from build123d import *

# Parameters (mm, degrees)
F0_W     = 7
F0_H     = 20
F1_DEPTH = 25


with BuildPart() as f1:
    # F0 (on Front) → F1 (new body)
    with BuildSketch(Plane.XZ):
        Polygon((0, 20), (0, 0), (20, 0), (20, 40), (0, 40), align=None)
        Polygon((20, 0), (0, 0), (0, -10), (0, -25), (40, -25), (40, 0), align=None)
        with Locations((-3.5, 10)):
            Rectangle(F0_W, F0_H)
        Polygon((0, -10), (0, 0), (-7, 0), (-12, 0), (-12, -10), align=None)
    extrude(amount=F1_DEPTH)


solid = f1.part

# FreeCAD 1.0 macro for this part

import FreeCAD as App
import Part
import Sketcher

doc = App.newDocument("Part")
body = doc.addObject("PartDesign::Body", "Body")

sketch1 = body.newObject("Sketcher::SketchObject", "Sketch")
sketch1.AttachmentSupport = (doc.getObject("XZ_Plane"), [""])
sketch1.MapMode = "FlatFace"
sketch1.addGeometry(Part.LineSegment(App.Vector(20, 0, 0), App.Vector(20, 40, 0)), False)
sketch1.addGeometry(Part.LineSegment(App.Vector(20, 40, 0), App.Vector(0, 40, 0)), False)
sketch1.addGeometry(Part.LineSegment(App.Vector(0, 40, 0), App.Vector(0, 20, 0)), False)
sketch1.addGeometry(Part.LineSegment(App.Vector(0, 20, 0), App.Vector(-7, 20, 0)), False)
sketch1.addGeometry(Part.LineSegment(App.Vector(-7, 20, 0), App.Vector(-7, 0, 0)), False)
sketch1.addGeometry(Part.LineSegment(App.Vector(-7, 0, 0), App.Vector(-12, 0, 0)), False)
sketch1.addGeometry(Part.LineSegment(App.Vector(-12, 0, 0), App.Vector(-12, -10, 0)), False)
sketch1.addGeometry(Part.LineSegment(App.Vector(-12, -10, 0), App.Vector(0, -10, 0)), False)
sketch1.addGeometry(Part.LineSegment(App.Vector(0, -10, 0), App.Vector(0, -25, 0)), False)
sketch1.addGeometry(Part.LineSegment(App.Vector(0, -25, 0), App.Vector(40, -25, 0)), False)
sketch1.addGeometry(Part.LineSegment(App.Vector(40, -25, 0), App.Vector(40, 0, 0)), False)
sketch1.addGeometry(Part.LineSegment(App.Vector(40, 0, 0), App.Vector(20, 0, 0)), False)
sketch1.addConstraint(Sketcher.Constraint("Coincident", 0, 2, 1, 1))
sketch1.addConstraint(Sketcher.Constraint("Coincident", 1, 2, 2, 1))
sketch1.addConstraint(Sketcher.Constraint("Coincident", 2, 2, 3, 1))
sketch1.addConstraint(Sketcher.Constraint("Coincident", 3, 2, 4, 1))
sketch1.addConstraint(Sketcher.Constraint("Coincident", 4, 2, 5, 1))
sketch1.addConstraint(Sketcher.Constraint("Coincident", 5, 2, 6, 1))
sketch1.addConstraint(Sketcher.Constraint("Coincident", 6, 2, 7, 1))
sketch1.addConstraint(Sketcher.Constraint("Coincident", 7, 2, 8, 1))
sketch1.addConstraint(Sketcher.Constraint("Coincident", 8, 2, 9, 1))
sketch1.addConstraint(Sketcher.Constraint("Coincident", 9, 2, 10, 1))
sketch1.addConstraint(Sketcher.Constraint("Coincident", 10, 2, 11, 1))
sketch1.addConstraint(Sketcher.Constraint("Coincident", 11, 2, 0, 1))
sketch1.addConstraint(Sketcher.Constraint("Vertical", 0))
sketch1.addConstraint(Sketcher.Constraint("Horizontal", 1))
sketch1.addConstraint(Sketcher.Constraint("Vertical", 2))
sketch1.addConstraint(Sketcher.Constraint("Horizontal", 3))
sketch1.addConstraint(Sketcher.Constraint("Vertical", 4))
sketch1.addConstraint(Sketcher.Constraint("Horizontal", 5))
sketch1.addConstraint(Sketcher.Constraint("Vertical", 6))
sketch1.addConstraint(Sketcher.Constraint("Horizontal", 7))
sketch1.addConstraint(Sketcher.Constraint("Vertical", 8))
sketch1.addConstraint(Sketcher.Constraint("Horizontal", 9))
sketch1.addConstraint(Sketcher.Constraint("Vertical", 10))
sketch1.addConstraint(Sketcher.Constraint("Horizontal", 11))
sketch1.addConstraint(Sketcher.Constraint("PointOnObject", 1, 2, -2))
sketch1.addConstraint(Sketcher.Constraint("PointOnObject", 4, 2, -1))
sketch1.addConstraint(Sketcher.Constraint("PointOnObject", 7, 2, -2))
sketch1.addConstraint(Sketcher.Constraint("PointOnObject", 10, 2, -1))
sketch1.addConstraint(Sketcher.Constraint("Equal", 1, 11))
sketch1.addConstraint(Sketcher.Constraint("Equal", 9, 0))
sketch1.addConstraint(Sketcher.Constraint("Equal", 11, 2))
sketch1.addConstraint(Sketcher.Constraint("DistanceX", 1, 2, 1, 1, 20.0))
sketch1.addConstraint(Sketcher.Constraint("DistanceX", 3, 2, 3, 1, 7.0))
sketch1.addConstraint(Sketcher.Constraint("DistanceX", 5, 2, 5, 1, 5.0))
sketch1.addConstraint(Sketcher.Constraint("DistanceY", 6, 2, 6, 1, 10.0))
sketch1.addConstraint(Sketcher.Constraint("DistanceY", 8, 2, 8, 1, 15.0))
pad1 = body.newObject("PartDesign::Pad", "Pad")
pad1.Profile = sketch1
pad1.Length = 25

doc.recompute()
